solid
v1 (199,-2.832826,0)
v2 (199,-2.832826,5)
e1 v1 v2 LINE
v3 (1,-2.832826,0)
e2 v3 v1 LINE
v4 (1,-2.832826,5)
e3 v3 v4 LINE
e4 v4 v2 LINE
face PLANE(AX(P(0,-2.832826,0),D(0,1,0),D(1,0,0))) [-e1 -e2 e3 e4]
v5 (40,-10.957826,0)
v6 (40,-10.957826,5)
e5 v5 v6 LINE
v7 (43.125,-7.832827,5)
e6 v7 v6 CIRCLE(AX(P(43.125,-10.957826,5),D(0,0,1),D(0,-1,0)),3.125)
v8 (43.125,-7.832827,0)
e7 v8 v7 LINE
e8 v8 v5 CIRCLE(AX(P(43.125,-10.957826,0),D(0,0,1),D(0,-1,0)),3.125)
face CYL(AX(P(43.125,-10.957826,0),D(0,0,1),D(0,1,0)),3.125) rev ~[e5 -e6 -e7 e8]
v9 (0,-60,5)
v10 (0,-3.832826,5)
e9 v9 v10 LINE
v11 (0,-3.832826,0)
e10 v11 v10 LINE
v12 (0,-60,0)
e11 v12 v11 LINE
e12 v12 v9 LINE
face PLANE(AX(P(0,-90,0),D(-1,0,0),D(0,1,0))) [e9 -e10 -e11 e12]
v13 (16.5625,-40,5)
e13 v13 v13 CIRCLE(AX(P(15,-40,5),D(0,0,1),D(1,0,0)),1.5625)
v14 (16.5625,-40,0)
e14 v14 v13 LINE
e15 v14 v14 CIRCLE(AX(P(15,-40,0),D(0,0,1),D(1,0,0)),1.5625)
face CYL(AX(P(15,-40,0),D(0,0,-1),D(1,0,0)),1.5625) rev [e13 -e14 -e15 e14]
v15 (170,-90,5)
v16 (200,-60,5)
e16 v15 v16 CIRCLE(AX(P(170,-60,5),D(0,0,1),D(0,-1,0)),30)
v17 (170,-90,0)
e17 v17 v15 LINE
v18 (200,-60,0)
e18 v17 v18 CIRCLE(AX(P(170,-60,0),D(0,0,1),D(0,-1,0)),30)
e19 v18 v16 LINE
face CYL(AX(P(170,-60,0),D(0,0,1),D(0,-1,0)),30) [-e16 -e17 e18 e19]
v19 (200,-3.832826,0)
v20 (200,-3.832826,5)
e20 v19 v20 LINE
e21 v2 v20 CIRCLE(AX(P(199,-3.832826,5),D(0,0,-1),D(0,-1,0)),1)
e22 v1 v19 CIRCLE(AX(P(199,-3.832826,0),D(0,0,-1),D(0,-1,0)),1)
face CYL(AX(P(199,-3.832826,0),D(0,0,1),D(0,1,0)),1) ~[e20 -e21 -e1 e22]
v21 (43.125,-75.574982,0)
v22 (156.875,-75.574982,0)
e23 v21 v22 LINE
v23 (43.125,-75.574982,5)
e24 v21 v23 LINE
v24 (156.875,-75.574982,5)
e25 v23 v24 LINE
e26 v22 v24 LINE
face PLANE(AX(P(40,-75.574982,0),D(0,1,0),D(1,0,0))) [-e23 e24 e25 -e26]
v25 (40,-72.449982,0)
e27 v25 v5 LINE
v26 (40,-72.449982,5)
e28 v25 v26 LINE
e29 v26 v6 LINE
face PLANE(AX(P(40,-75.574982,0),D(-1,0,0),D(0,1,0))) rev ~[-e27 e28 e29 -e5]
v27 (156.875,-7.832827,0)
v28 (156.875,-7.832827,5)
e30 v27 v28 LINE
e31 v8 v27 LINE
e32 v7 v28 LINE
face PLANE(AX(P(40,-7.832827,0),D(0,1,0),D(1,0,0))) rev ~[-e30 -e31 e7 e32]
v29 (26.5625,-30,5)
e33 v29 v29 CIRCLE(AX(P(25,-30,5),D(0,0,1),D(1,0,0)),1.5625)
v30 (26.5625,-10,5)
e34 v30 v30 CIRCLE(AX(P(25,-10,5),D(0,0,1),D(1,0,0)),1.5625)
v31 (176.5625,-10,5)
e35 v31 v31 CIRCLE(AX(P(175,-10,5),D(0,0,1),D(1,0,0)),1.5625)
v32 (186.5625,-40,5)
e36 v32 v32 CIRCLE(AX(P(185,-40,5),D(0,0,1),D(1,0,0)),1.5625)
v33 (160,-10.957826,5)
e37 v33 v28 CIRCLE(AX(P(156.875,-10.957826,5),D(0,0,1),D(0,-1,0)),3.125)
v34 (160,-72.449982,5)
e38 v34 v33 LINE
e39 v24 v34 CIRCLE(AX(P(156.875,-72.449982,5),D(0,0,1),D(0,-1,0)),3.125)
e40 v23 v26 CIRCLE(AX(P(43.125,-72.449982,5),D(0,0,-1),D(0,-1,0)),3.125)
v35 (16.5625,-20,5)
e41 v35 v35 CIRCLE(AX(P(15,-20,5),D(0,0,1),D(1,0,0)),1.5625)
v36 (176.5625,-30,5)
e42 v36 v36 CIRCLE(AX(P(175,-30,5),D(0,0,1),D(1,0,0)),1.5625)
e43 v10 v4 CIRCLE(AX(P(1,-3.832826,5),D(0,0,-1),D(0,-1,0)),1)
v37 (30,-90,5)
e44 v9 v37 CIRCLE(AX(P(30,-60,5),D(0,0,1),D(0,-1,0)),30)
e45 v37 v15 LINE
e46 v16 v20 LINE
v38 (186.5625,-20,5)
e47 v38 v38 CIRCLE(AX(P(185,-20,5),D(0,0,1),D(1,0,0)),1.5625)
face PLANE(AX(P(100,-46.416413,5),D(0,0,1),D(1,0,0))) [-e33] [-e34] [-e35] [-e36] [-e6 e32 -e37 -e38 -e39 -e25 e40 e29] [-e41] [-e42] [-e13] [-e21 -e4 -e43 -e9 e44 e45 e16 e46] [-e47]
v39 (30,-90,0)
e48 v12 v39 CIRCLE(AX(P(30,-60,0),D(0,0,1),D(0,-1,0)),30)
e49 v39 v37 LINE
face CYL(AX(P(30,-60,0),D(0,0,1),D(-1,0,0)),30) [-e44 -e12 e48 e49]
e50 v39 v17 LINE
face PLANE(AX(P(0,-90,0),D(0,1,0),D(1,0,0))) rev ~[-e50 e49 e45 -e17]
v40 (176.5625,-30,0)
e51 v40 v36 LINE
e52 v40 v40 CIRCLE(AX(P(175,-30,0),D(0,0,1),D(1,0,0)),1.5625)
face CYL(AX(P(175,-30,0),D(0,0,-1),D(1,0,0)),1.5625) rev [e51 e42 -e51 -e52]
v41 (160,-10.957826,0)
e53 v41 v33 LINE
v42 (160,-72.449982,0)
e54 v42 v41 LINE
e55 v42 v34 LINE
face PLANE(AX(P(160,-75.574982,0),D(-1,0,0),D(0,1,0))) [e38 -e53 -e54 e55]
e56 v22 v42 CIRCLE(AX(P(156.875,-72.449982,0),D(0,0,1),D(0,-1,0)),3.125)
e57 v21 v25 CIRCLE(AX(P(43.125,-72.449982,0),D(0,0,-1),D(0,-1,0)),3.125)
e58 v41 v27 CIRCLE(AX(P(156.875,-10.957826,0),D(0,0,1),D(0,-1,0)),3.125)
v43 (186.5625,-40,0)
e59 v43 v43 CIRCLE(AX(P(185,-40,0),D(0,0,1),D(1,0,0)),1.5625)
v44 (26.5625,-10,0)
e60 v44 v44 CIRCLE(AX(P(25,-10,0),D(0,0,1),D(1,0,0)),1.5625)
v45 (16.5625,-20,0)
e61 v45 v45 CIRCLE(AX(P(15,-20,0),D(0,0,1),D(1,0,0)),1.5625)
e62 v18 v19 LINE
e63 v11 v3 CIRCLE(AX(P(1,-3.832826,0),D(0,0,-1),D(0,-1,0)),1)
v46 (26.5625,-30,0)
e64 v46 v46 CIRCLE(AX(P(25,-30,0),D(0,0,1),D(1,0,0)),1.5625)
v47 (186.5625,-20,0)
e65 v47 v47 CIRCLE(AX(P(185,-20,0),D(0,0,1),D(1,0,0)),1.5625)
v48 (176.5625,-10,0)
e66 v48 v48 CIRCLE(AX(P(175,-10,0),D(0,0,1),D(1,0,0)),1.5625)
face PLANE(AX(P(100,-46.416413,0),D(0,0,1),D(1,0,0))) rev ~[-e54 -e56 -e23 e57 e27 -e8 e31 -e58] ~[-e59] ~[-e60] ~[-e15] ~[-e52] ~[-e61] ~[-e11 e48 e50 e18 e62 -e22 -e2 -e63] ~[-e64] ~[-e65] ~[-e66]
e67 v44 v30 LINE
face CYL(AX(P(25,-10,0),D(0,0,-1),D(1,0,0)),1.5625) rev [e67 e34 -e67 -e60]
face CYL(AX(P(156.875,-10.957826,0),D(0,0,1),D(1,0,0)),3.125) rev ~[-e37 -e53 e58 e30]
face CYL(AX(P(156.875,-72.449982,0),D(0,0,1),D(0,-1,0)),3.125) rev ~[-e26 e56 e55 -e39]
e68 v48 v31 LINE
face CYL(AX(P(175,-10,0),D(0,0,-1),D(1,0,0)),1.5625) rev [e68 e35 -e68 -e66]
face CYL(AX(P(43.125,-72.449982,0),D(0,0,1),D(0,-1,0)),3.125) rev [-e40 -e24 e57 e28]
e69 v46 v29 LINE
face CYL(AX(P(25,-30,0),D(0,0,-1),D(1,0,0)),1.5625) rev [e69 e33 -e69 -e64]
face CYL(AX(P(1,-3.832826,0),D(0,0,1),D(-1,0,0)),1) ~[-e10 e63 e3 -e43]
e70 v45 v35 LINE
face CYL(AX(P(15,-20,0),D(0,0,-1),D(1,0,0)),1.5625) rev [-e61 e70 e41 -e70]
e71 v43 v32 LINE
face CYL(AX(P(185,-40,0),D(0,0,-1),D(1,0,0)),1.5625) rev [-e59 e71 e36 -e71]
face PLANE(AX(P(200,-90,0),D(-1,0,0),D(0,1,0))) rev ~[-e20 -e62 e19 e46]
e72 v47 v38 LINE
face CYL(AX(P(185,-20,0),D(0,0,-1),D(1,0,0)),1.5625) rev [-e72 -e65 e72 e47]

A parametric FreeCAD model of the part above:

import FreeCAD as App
import Part
import Sketcher
from FreeCAD import Vector


def edges_at(feature, points):
    """Names of the edges that pass closest to the given points."""
    edges = feature.Shape.Edges
    near = lambda p: min(range(len(edges)), key=lambda i: edges[i].distToShape(Part.Vertex(*p))[0])
    return sorted({f"Edge{near(p) + 1}" for p in points})

doc = App.newDocument("Part")
body = doc.addObject("PartDesign::Body", "Body")

sketch1 = body.newObject("Sketcher::SketchObject", "Sketch")
sketch1.AttachmentSupport = (doc.getObject("XY_Plane"), [""])
sketch1.MapMode = "FlatFace"
sketch1.addGeometry([
    Part.LineSegment(Vector(0, -2.8, 0), Vector(0, -90, 0)),
    Part.LineSegment(Vector(0, -90, 0), Vector(200, -90, 0)),
    Part.LineSegment(Vector(200, -90, 0), Vector(200, -2.8, 0)),
    Part.LineSegment(Vector(200, -2.8, 0), Vector(0, -2.8, 0)),
    Part.Circle(Vector(15, -40, 0), Vector(0, 0, 1), 1.6),
    Part.Circle(Vector(25, -30, 0), Vector(0, 0, 1), 1.6),
    Part.Circle(Vector(15, -20, 0), Vector(0, 0, 1), 1.6),
    Part.Circle(Vector(25, -10, 0), Vector(0, 0, 1), 1.6),
    Part.LineSegment(Vector(160, -75.6, 0), Vector(40, -75.6, 0)),
    Part.LineSegment(Vector(40, -75.6, 0), Vector(40, -7.8, 0)),
    Part.LineSegment(Vector(40, -7.8, 0), Vector(160, -7.8, 0)),
    Part.LineSegment(Vector(160, -7.8, 0), Vector(160, -75.6, 0)),
    Part.Circle(Vector(185, -40, 0), Vector(0, 0, 1), 1.6),
    Part.Circle(Vector(175, -30, 0), Vector(0, 0, 1), 1.6),
    Part.Circle(Vector(185, -20, 0), Vector(0, 0, 1), 1.6),
    Part.Circle(Vector(175, -10, 0), Vector(0, 0, 1), 1.6),
], False)
sketch1.addConstraint([
    Sketcher.Constraint("Coincident", 0, 2, 1, 1),
    Sketcher.Constraint("Coincident", 1, 2, 2, 1),
    Sketcher.Constraint("Coincident", 2, 2, 3, 1),
    Sketcher.Constraint("Coincident", 3, 2, 0, 1),
    Sketcher.Constraint("Coincident", 8, 2, 9, 1),
    Sketcher.Constraint("Coincident", 9, 2, 10, 1),
    Sketcher.Constraint("Coincident", 10, 2, 11, 1),
    Sketcher.Constraint("Coincident", 11, 2, 8, 1),
    Sketcher.Constraint("Vertical", 0),
    Sketcher.Constraint("Horizontal", 1),
    Sketcher.Constraint("Vertical", 2),
    Sketcher.Constraint("Horizontal", 3),
    Sketcher.Constraint("Horizontal", 8),
    Sketcher.Constraint("Vertical", 9),
    Sketcher.Constraint("Horizontal", 10),
    Sketcher.Constraint("Vertical", 11),
    Sketcher.Constraint("Equal", 4, 5),
    Sketcher.Constraint("Equal", 5, 6),
    Sketcher.Constraint("Equal", 6, 7),
    Sketcher.Constraint("Equal", 7, 12),
    Sketcher.Constraint("Equal", 12, 13),
    Sketcher.Constraint("Equal", 13, 14),
    Sketcher.Constraint("Equal", 14, 15),
    Sketcher.Constraint("PointOnObject", 0, 2, -2),
    Sketcher.Constraint("Horizontal", 4, 3, 12, 3),
    Sketcher.Constraint("Horizontal", 5, 3, 13, 3),
    Sketcher.Constraint("Horizontal", 6, 3, 14, 3),
    Sketcher.Constraint("Horizontal", 7, 3, 15, 3),
    Sketcher.Constraint("Vertical", 4, 3, 6, 3),
    Sketcher.Constraint("Vertical", 5, 3, 7, 3),
    Sketcher.Constraint("Vertical", 12, 3, 14, 3),
    Sketcher.Constraint("Vertical", 13, 3, 15, 3),
    Sketcher.Constraint("DistanceX", 1, 1, 1, 2, 200.0),
    Sketcher.Constraint("DistanceX", 8, 2, 8, 1, 120.0),
    Sketcher.Constraint("Diameter", 4, 3.125),
    Sketcher.Constraint("DistanceX", -1, 1, 4, 3, 15.0),
    Sketcher.Constraint("DistanceY", 4, 3, -1, 1, 40.0),
    Sketcher.Constraint("DistanceX", -1, 1, 5, 3, 25.0),
    Sketcher.Constraint("DistanceY", 5, 3, -1, 1, 30.0),
    Sketcher.Constraint("DistanceY", 6, 3, -1, 1, 20.0),
    Sketcher.Constraint("DistanceY", 7, 3, -1, 1, 10.0),
    Sketcher.Constraint("DistanceX", -1, 1, 12, 3, 185.0),
    Sketcher.Constraint("DistanceX", -1, 1, 13, 3, 175.0),
    Sketcher.Constraint("DistanceY", 0, 2, -1, 1, 90.0),
    Sketcher.Constraint("DistanceX", -1, 1, 8, 2, 40.0),
    Sketcher.Constraint("DistanceY", 9, 2, 3, 2, 5.0),
    Sketcher.Constraint("DistanceY", 0, 2, 0, 1, 87.167173),
    Sketcher.Constraint("DistanceY", 9, 1, 9, 2, 67.742155),
])
pad1 = body.newObject("PartDesign::Pad", "Pad")
pad1.Profile = sketch1
pad1.Length = 5
doc.recompute()

fillet = body.newObject("PartDesign::Fillet", "Fillet")
fillet.Base = (pad1, edges_at(pad1, [(200, -90, 2.5), (0, -90, 2.5)]))
fillet.Radius = 30
doc.recompute()

fillet2 = body.newObject("PartDesign::Fillet", "Fillet001")
fillet2.Base = (fillet, edges_at(fillet, [
    (40, -7.833, 2.5),
    (160, -7.833, 2.5),
    (160, -75.575, 2.5),
    (40, -75.575, 2.5),
]))
fillet2.Radius = 3.125
doc.recompute()

fillet3 = body.newObject("PartDesign::Fillet", "Fillet002")
fillet3.Base = (fillet2, edges_at(fillet2, [(0, -2.833, 2.5), (200, -2.833, 2.5)]))
fillet3.Radius = 1

doc.recompute()
